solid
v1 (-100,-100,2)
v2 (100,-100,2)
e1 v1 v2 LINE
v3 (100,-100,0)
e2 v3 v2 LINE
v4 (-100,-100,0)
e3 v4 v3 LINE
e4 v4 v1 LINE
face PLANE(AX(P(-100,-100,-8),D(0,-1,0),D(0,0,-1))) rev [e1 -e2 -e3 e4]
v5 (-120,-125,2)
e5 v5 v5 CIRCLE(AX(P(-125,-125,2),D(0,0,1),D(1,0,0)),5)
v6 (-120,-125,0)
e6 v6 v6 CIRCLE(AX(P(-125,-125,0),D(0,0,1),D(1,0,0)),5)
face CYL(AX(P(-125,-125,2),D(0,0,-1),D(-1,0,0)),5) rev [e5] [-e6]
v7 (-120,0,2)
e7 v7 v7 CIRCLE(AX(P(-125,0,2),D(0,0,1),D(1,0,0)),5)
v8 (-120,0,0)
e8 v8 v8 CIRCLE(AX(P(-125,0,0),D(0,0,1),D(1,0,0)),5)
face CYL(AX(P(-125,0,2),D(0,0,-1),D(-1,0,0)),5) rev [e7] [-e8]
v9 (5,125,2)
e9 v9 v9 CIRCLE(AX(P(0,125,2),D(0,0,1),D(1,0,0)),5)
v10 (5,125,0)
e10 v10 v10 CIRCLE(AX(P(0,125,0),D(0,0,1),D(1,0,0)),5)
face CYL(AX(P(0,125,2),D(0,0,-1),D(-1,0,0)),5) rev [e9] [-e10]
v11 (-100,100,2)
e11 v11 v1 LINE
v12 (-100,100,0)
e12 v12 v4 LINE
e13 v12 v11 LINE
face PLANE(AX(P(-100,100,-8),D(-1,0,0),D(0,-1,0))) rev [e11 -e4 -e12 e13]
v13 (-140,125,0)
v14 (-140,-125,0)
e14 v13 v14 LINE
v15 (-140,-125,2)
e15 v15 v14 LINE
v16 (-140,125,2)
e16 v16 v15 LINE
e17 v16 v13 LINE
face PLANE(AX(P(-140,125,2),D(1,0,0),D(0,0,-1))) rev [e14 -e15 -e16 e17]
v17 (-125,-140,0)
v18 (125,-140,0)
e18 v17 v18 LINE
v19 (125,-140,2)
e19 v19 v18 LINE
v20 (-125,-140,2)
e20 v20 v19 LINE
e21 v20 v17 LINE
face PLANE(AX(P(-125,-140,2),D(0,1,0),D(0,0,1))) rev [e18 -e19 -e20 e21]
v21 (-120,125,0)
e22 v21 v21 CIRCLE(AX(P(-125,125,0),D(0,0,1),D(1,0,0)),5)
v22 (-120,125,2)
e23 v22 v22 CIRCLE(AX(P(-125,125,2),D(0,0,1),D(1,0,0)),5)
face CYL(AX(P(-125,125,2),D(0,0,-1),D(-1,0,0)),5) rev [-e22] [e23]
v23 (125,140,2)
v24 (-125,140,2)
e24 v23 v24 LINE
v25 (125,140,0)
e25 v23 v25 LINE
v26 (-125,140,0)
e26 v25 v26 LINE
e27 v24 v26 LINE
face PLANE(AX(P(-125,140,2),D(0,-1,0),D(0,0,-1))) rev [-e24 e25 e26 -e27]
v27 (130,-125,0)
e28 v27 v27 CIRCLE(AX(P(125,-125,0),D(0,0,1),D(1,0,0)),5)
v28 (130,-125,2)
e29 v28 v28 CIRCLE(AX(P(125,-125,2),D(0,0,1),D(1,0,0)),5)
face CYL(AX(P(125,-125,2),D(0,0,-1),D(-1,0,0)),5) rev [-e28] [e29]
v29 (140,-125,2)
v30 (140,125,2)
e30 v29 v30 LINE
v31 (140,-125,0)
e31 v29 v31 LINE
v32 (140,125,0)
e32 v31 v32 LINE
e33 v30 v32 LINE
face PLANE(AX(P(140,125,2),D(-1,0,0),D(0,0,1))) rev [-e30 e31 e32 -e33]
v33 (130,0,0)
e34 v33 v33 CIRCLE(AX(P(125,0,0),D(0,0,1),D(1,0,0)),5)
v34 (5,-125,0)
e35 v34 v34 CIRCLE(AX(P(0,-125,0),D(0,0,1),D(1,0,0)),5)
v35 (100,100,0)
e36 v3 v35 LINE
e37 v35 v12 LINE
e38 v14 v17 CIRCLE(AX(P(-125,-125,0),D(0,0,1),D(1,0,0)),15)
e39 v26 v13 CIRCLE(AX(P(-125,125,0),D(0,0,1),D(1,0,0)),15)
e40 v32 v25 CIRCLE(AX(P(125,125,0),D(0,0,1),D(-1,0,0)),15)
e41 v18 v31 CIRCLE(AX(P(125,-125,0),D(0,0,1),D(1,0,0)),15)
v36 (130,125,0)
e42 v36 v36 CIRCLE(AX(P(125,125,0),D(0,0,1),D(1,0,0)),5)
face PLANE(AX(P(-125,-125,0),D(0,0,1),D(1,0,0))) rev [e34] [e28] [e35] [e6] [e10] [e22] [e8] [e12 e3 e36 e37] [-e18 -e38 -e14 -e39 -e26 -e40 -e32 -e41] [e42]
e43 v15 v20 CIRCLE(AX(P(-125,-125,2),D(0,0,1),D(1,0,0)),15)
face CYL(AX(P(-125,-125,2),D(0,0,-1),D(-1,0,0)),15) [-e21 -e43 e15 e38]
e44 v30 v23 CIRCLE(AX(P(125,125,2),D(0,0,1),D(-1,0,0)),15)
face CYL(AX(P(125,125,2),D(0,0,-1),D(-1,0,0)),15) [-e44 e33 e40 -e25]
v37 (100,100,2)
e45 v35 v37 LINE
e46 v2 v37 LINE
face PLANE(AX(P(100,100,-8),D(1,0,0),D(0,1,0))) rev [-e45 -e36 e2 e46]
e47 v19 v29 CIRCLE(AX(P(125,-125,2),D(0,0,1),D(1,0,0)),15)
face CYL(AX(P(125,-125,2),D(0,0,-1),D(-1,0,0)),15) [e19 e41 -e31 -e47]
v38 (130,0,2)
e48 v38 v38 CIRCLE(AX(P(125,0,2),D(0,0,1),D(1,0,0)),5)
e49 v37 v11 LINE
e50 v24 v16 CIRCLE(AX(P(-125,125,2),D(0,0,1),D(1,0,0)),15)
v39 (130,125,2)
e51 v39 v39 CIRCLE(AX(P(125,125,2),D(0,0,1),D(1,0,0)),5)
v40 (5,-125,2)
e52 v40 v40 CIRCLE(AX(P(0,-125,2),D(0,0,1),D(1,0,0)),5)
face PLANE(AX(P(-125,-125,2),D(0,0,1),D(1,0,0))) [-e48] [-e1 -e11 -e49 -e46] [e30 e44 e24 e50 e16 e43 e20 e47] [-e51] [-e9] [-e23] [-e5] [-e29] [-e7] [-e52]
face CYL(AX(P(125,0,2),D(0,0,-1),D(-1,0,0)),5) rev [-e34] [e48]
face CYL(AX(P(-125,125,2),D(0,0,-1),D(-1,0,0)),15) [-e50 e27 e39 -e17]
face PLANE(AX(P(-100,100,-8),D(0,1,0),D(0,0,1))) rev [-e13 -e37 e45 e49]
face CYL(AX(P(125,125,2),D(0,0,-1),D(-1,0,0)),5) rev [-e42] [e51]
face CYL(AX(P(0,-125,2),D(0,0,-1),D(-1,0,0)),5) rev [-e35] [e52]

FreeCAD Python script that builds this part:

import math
import FreeCAD as App
import Part
import Sketcher
Q = App.Units.Quantity

doc = App.newDocument("Part")
params = doc.addObject("Spreadsheet::Sheet", "Params")
for row, (alias, value) in enumerate([
    ("sketch1_diameter", "10 mm"),
    ("sketch1_diameter2", "8 mm"),
    ("sketch1_radius", "15 mm"),
    ("sketch1_width", "250 mm"),
    ("pad1_length", "2 mm"),
    ("sketch2_width", "200 mm"),
    ("pocket1_length", "10 mm"),
], start=1):
    params.set(f"A{row}", alias)
    params.set(f"B{row}", "=" + value)
    params.setAlias(f"B{row}", alias)

body = doc.addObject("PartDesign::Body", "Body")

# Sketch on XY plane
sketch1 = body.newObject("Sketcher::SketchObject", "Sketch")
sketch1.AttachmentSupport = (doc.getObject("XY_Plane"), [""])
sketch1.MapMode = "FlatFace"
sketch1.addGeometry([
    Part.LineSegment(App.Vector(125, 140, 0), App.Vector(-125, 140, 0)),  # 0
    Part.ArcOfCircle(Part.Circle(App.Vector(-125, 125, 0), App.Vector(0, 0, 1), 15), math.radians(90), math.radians(180)),  # 1
    Part.LineSegment(App.Vector(-140, 125, 0), App.Vector(-140, -125, 0)),  # 2
    Part.ArcOfCircle(Part.Circle(App.Vector(-125, -125, 0), App.Vector(0, 0, 1), 15), math.radians(180), math.radians(270)),  # 3
    Part.LineSegment(App.Vector(-125, -140, 0), App.Vector(125, -140, 0)),  # 4
    Part.ArcOfCircle(Part.Circle(App.Vector(125, -125, 0), App.Vector(0, 0, 1), 15), math.radians(-90), math.radians(0)),  # 5
    Part.LineSegment(App.Vector(140, -125, 0), App.Vector(140, 125, 0)),  # 6
    Part.ArcOfCircle(Part.Circle(App.Vector(125, 125, 0), App.Vector(0, 0, 1), 15), math.radians(0), math.radians(90)),  # 7
    Part.Circle(App.Vector(125, -125, 0), App.Vector(0, 0, 1), 5),  # 8
    Part.Circle(App.Vector(0, -125, 0), App.Vector(0, 0, 1), 5),  # 9
    Part.Circle(App.Vector(-125, -125, 0), App.Vector(0, 0, 1), 5),  # 10
    Part.Circle(App.Vector(125, 0, 0), App.Vector(0, 0, 1), 5),  # 11
    Part.Circle(App.Vector(125, 125, 0), App.Vector(0, 0, 1), 5),  # 12
    Part.Circle(App.Vector(0, 0, 0), App.Vector(0, 0, 1), 4),  # 13
    Part.Circle(App.Vector(-125, 0, 0), App.Vector(0, 0, 1), 5),  # 14
    Part.Circle(App.Vector(0, 125, 0), App.Vector(0, 0, 1), 5),  # 15
    Part.Circle(App.Vector(-125, 125, 0), App.Vector(0, 0, 1), 5),  # 16
], False)
sketch1.addConstraint([
    Sketcher.Constraint("Tangent", 0, 2, 1, 1),
    Sketcher.Constraint("Tangent", 1, 2, 2, 1),
    Sketcher.Constraint("Tangent", 2, 2, 3, 1),
    Sketcher.Constraint("Tangent", 3, 2, 4, 1),
    Sketcher.Constraint("Tangent", 4, 2, 5, 1),
    Sketcher.Constraint("Tangent", 5, 2, 6, 1),
    Sketcher.Constraint("Tangent", 6, 2, 7, 1),
    Sketcher.Constraint("Tangent", 7, 2, 0, 1),
    Sketcher.Constraint("Horizontal", 0),
    Sketcher.Constraint("Vertical", 2),
    Sketcher.Constraint("Horizontal", 4),
    Sketcher.Constraint("Vertical", 6),
    Sketcher.Constraint("Coincident", 13, 3, -1, 1),
    Sketcher.Constraint("Coincident", 8, 3, 5, 3),
    Sketcher.Constraint("Coincident", 10, 3, 3, 3),
    Sketcher.Constraint("Coincident", 12, 3, 7, 3),
    Sketcher.Constraint("Coincident", 16, 3, 1, 3),
    Sketcher.Constraint("Equal", 1, 3),
    Sketcher.Constraint("Equal", 3, 5),
    Sketcher.Constraint("Equal", 5, 7),
    Sketcher.Constraint("Equal", 8, 9),
    Sketcher.Constraint("Equal", 9, 10),
    Sketcher.Constraint("Equal", 10, 11),
    Sketcher.Constraint("Equal", 11, 12),
    Sketcher.Constraint("Equal", 12, 14),
    Sketcher.Constraint("Equal", 14, 15),
    Sketcher.Constraint("Equal", 15, 16),
    Sketcher.Constraint("Symmetric", 1, 3, 5, 3, -1, 1),
    Sketcher.Constraint("Symmetric", 11, 3, 14, 3, -1, 1),
    Sketcher.Constraint("Symmetric", 9, 3, 15, 3, -1, 1),
    Sketcher.Constraint("PointOnObject", 9, 3, -2),
    Sketcher.Constraint("PointOnObject", 11, 3, -1),
    Sketcher.Constraint("Horizontal", 8, 3, 9, 3),
    Sketcher.Constraint("Vertical", 8, 3, 11, 3),
    Sketcher.Constraint("Equal", 4, 2),
    Sketcher.Constraint("Diameter", 8, Q("10 mm")),
    Sketcher.Constraint("Diameter", 13, Q("8 mm")),
    Sketcher.Constraint("Radius", 1, Q("15 mm")),
    Sketcher.Constraint("DistanceX", 0, 2, 0, 1, Q("250 mm")),
])
sketch1.setExpression("Constraints[35]", "Params.sketch1_diameter")
sketch1.setExpression("Constraints[36]", "Params.sketch1_diameter2")
sketch1.setExpression("Constraints[37]", "Params.sketch1_radius")
sketch1.setExpression("Constraints[38]", "Params.sketch1_width")
pad1 = body.newObject("PartDesign::Pad", "Pad")
pad1.Profile = sketch1
pad1.setExpression("Length", "Params.pad1_length")

# Sketch on XY plane
sketch2 = body.newObject("Sketcher::SketchObject", "Sketch001")
sketch2.AttachmentSupport = (doc.getObject("XY_Plane"), [""])
sketch2.MapMode = "FlatFace"
sketch2.AttachmentOffset = App.Placement(App.Vector(0, 0, 2), App.Rotation())
sketch2.addGeometry([
    Part.LineSegment(App.Vector(-100, 100, 0), App.Vector(-100, -100, 0)),
    Part.LineSegment(App.Vector(-100, -100, 0), App.Vector(100, -100, 0)),
    Part.LineSegment(App.Vector(100, -100, 0), App.Vector(100, 100, 0)),
    Part.LineSegment(App.Vector(100, 100, 0), App.Vector(-100, 100, 0)),
], False)
sketch2.addConstraint([
    Sketcher.Constraint("Coincident", 0, 2, 1, 1),
    Sketcher.Constraint("Coincident", 1, 2, 2, 1),
    Sketcher.Constraint("Coincident", 2, 2, 3, 1),
    Sketcher.Constraint("Coincident", 3, 2, 0, 1),
    Sketcher.Constraint("Vertical", 0),
    Sketcher.Constraint("Horizontal", 1),
    Sketcher.Constraint("Vertical", 2),
    Sketcher.Constraint("Horizontal", 3),
    Sketcher.Constraint("Symmetric", 0, 2, 2, 2, -1, 1),
    Sketcher.Constraint("Equal", 3, 0),
    Sketcher.Constraint("DistanceX", 1, 1, 1, 2, Q("200 mm")),
])
sketch2.setExpression("Constraints[10]", "Params.sketch2_width")
pocket1 = body.newObject("PartDesign::Pocket", "Pocket")
pocket1.Profile = sketch2
pocket1.setExpression("Length", "Params.pocket1_length")

doc.recompute()
